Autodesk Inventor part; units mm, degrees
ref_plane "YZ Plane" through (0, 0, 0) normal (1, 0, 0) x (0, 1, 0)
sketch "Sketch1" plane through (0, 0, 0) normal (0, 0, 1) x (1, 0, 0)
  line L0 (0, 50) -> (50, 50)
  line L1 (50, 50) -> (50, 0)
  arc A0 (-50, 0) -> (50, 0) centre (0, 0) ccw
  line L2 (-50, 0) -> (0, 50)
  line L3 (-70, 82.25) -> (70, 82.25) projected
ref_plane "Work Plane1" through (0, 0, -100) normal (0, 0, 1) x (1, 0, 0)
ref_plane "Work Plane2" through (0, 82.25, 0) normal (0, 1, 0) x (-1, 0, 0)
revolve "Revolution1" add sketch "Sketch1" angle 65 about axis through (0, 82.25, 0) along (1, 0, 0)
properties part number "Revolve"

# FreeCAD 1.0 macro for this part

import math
import FreeCAD as App
import Part
import Sketcher

V = App.Vector
Q = App.Units.Quantity

doc = App.newDocument("Part")
body = doc.addObject("PartDesign::Body", "Body")

sketch1 = doc.addObject("Sketcher::SketchObject", "Sketch")
body.addObject(sketch1)
sketch1.AttachmentSupport = (doc.XY_Plane, [""])
sketch1.MapMode = "FlatFace"
sketch1.addGeometry(Part.LineSegment(V(50, 50, 0), V(0, 50, 0)), False)
sketch1.addGeometry(Part.LineSegment(V(0, 50, 0), V(-50, 0, 0)), False)
sketch1.addGeometry(Part.ArcOfCircle(Part.Circle(V(0, 0, 0), V(0, 0, 1), 50), math.radians(180), math.radians(360)), False)
sketch1.addGeometry(Part.LineSegment(V(50, 0, 0), V(50, 50, 0)), False)
sketch1.addGeometry(Part.LineSegment(V(-50, 82, 0), V(50, 82, 0)), True)
sketch1.addConstraint(Sketcher.Constraint("Coincident", 0, 2, 1, 1))
sketch1.addConstraint(Sketcher.Constraint("Coincident", 1, 2, 2, 1))
sketch1.addConstraint(Sketcher.Constraint("Tangent", 2, 2, 3, 1))
sketch1.addConstraint(Sketcher.Constraint("Coincident", 3, 2, 0, 1))
sketch1.addConstraint(Sketcher.Constraint("Horizontal", 0))
sketch1.addConstraint(Sketcher.Constraint("Vertical", 3))
sketch1.addConstraint(Sketcher.Constraint("Horizontal", 4))
sketch1.addConstraint(Sketcher.Constraint("Coincident", 2, 3, -1, 1))
sketch1.addConstraint(Sketcher.Constraint("PointOnObject", 0, 2, -2))
sketch1.addConstraint(Sketcher.Constraint("PointOnObject", 1, 2, -1))
sketch1.addConstraint(Sketcher.Constraint("Vertical", 1, 2, 4, 1))
sketch1.addConstraint(Sketcher.Constraint("Vertical", 3, 2, 4, 2))
sketch1.addConstraint(Sketcher.Constraint("Equal", 0, 3))
sketch1.addConstraint(Sketcher.Constraint("Radius", 2, Q("1.9685 in")))
sketch1.addConstraint(Sketcher.Constraint("DistanceY", -1, 1, 4, 1, Q("3.2382 in")))
revolution = doc.addObject("PartDesign::Revolution", "Revolution")
body.addObject(revolution)
revolution.Profile = sketch1
revolution.ReferenceAxis = (sketch1, ["Axis0"])
revolution.Angle = 65

doc.recompute()
